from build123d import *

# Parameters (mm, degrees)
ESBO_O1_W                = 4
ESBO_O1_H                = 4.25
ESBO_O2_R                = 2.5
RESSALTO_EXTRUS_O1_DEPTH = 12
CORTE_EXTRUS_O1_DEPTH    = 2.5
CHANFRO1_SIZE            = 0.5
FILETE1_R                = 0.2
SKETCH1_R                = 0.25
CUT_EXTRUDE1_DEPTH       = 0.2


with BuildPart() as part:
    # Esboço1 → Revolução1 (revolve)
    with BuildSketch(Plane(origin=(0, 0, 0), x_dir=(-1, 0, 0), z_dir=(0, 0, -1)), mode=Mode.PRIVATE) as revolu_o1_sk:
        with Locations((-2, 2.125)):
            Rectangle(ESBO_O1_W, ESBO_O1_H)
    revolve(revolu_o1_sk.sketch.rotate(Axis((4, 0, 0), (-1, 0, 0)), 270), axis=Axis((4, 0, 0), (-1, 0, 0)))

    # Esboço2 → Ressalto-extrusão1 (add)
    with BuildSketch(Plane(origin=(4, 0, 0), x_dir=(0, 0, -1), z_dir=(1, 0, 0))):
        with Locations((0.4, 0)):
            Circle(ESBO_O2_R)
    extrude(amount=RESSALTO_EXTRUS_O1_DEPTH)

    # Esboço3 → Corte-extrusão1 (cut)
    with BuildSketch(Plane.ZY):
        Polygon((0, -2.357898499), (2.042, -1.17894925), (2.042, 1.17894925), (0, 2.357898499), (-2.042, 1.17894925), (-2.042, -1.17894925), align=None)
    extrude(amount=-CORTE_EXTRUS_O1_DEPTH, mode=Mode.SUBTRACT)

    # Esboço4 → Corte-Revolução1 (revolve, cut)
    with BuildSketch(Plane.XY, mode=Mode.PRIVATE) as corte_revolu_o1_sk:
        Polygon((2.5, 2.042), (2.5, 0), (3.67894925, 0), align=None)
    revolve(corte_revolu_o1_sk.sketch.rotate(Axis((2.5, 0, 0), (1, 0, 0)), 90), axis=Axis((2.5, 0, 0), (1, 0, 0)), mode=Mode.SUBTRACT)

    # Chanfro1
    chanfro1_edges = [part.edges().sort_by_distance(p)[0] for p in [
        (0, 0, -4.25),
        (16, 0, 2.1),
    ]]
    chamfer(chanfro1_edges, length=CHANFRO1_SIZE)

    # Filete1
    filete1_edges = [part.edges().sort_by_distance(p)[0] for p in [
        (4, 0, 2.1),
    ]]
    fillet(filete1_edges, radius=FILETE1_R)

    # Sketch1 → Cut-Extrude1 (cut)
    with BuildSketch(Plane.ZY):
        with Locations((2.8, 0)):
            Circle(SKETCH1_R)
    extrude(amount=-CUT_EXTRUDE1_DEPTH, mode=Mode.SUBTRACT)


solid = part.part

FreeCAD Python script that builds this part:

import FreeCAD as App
import Part
import Sketcher
from FreeCAD import Vector
Q = App.Units.Quantity


def edges_at(feature, points):
    """Names of the edges that pass closest to the given points."""
    edges = feature.Shape.Edges
    near = lambda p: min(range(len(edges)), key=lambda i: edges[i].distToShape(Part.Vertex(*p))[0])
    return sorted({f"Edge{near(p) + 1}" for p in points})

doc = App.newDocument("Part")
body = doc.addObject("PartDesign::Body", "Body")

# Sketch on XY plane
sketch1 = doc.addObject("Sketcher::SketchObject", "Sketch")
body.addObject(sketch1)
sketch1.AttachmentSupport = (doc.XY_Plane, [""])
sketch1.MapMode = "FlatFace"
sketch1.addGeometry(Part.LineSegment(Vector(4, 4.2, 0), Vector(4, 0, 0)), False)
sketch1.addGeometry(Part.LineSegment(Vector(4, 0, 0), Vector(0, 0, 0)), False)
sketch1.addGeometry(Part.LineSegment(Vector(0, 0, 0), Vector(0, 4.2, 0)), False)
sketch1.addGeometry(Part.LineSegment(Vector(0, 4.2, 0), Vector(4, 4.2, 0)), False)
sketch1.addConstraint(Sketcher.Constraint("Coincident", 0, 2, 1, 1))
sketch1.addConstraint(Sketcher.Constraint("Coincident", 1, 2, 2, 1))
sketch1.addConstraint(Sketcher.Constraint("Coincident", 2, 2, 3, 1))
sketch1.addConstraint(Sketcher.Constraint("Coincident", 3, 2, 0, 1))
sketch1.addConstraint(Sketcher.Constraint("Vertical", 0))
sketch1.addConstraint(Sketcher.Constraint("Horizontal", 1))
sketch1.addConstraint(Sketcher.Constraint("Vertical", 2))
sketch1.addConstraint(Sketcher.Constraint("Horizontal", 3))
sketch1.addConstraint(Sketcher.Constraint("Coincident", 1, 2, -1, 1))
sketch1.addConstraint(Sketcher.Constraint("DistanceX", 1, 2, 1, 1, 4.0))
sketch1.addConstraint(Sketcher.Constraint("DistanceY", 0, 2, 0, 1, 4.25))
revolution = doc.addObject("PartDesign::Revolution", "Revolution")
body.addObject(revolution)
revolution.Profile = sketch1
revolution.ReferenceAxis = (sketch1, ["H_Axis"])
revolution.Angle = 360

# Sketch on YZ plane
sketch2 = doc.addObject("Sketcher::SketchObject", "Sketch001")
body.addObject(sketch2)
sketch2.AttachmentSupport = (doc.YZ_Plane, [""])
sketch2.MapMode = "FlatFace"
sketch2.AttachmentOffset = App.Placement(Vector(0, 0, 4), App.Rotation())
sketch2.addGeometry(Part.Circle(Vector(0, -0.4, 0), Vector(0, 0, 1), 2.5), False)
sketch2.addConstraint(Sketcher.Constraint("PointOnObject", 0, 3, -2))
sketch2.addConstraint(Sketcher.Constraint("Diameter", 0, 5.0))
sketch2.addConstraint(Sketcher.Constraint("DistanceY", 0, 3, -1, 1, 0.4))
pad1 = doc.addObject("PartDesign::Pad", "Pad")
body.addObject(pad1)
pad1.Profile = sketch2
pad1.Length = 12

# Sketch on YZ plane
sketch3 = doc.addObject("Sketcher::SketchObject", "Sketch002")
body.addObject(sketch3)
sketch3.AttachmentSupport = (doc.YZ_Plane, [""])
sketch3.MapMode = "FlatFace"
sketch3.addGeometry(Part.LineSegment(Vector(-2.4, 0, 0), Vector(-1.2, 2, 0)), False)
sketch3.addGeometry(Part.LineSegment(Vector(-1.2, 2, 0), Vector(1.2, 2, 0)), False)
sketch3.addGeometry(Part.LineSegment(Vector(1.2, 2, 0), Vector(2.4, 0, 0)), False)
sketch3.addGeometry(Part.LineSegment(Vector(2.4, 0, 0), Vector(1.2, -2, 0)), False)
sketch3.addGeometry(Part.LineSegment(Vector(1.2, -2, 0), Vector(-1.2, -2, 0)), False)
sketch3.addGeometry(Part.LineSegment(Vector(-1.2, -2, 0), Vector(-2.4, 0, 0)), False)
sketch3.addConstraint(Sketcher.Constraint("Coincident", 0, 2, 1, 1))
sketch3.addConstraint(Sketcher.Constraint("Coincident", 1, 2, 2, 1))
sketch3.addConstraint(Sketcher.Constraint("Coincident", 2, 2, 3, 1))
sketch3.addConstraint(Sketcher.Constraint("Coincident", 3, 2, 4, 1))
sketch3.addConstraint(Sketcher.Constraint("Coincident", 4, 2, 5, 1))
sketch3.addConstraint(Sketcher.Constraint("Coincident", 5, 2, 0, 1))
sketch3.addConstraint(Sketcher.Constraint("Horizontal", 1))
sketch3.addConstraint(Sketcher.Constraint("Horizontal", 4))
sketch3.addConstraint(Sketcher.Constraint("Symmetric", 0, 2, 3, 2, -1, 1))
sketch3.addConstraint(Sketcher.Constraint("Symmetric", 2, 2, 5, 2, -1, 1))
sketch3.addConstraint(Sketcher.Constraint("PointOnObject", 2, 2, -1))
sketch3.addConstraint(Sketcher.Constraint("Parallel", 2, 5))
sketch3.addConstraint(Sketcher.Constraint("Vertical", 1, 2, 3, 2))
sketch3.addConstraint(Sketcher.Constraint("Angle", 0, Q("60 deg")))
sketch3.addConstraint(Sketcher.Constraint("DistanceX", 1, 1, 1, 2, 2.357899))
sketch3.addConstraint(Sketcher.Constraint("DistanceY", -1, 1, 0, 2, 2.042))
pocket1 = doc.addObject("PartDesign::Pocket", "Pocket")
body.addObject(pocket1)
pocket1.Profile = sketch3
pocket1.Length = 2.5
pocket1.Reversed = True

# Sketch on XY plane
sketch4 = doc.addObject("Sketcher::SketchObject", "Sketch003")
body.addObject(sketch4)
sketch4.AttachmentSupport = (doc.XY_Plane, [""])
sketch4.MapMode = "FlatFace"
sketch4.addGeometry(Part.LineSegment(Vector(2.5, 2, 0), Vector(2.5, 0, 0)), False)
sketch4.addGeometry(Part.LineSegment(Vector(2.5, 0, 0), Vector(3.7, 0, 0)), False)
sketch4.addGeometry(Part.LineSegment(Vector(3.7, 0, 0), Vector(2.5, 2, 0)), False)
sketch4.addConstraint(Sketcher.Constraint("Coincident", 0, 2, 1, 1))
sketch4.addConstraint(Sketcher.Constraint("Coincident", 1, 2, 2, 1))
sketch4.addConstraint(Sketcher.Constraint("Coincident", 2, 2, 0, 1))
sketch4.addConstraint(Sketcher.Constraint("Vertical", 0))
sketch4.addConstraint(Sketcher.Constraint("Horizontal", 1))
sketch4.addConstraint(Sketcher.Constraint("PointOnObject", 0, 2, -1))
sketch4.addConstraint(Sketcher.Constraint("Angle", 2, Q("120 deg")))
sketch4.addConstraint(Sketcher.Constraint("DistanceX", -1, 1, 0, 2, 2.5))
sketch4.addConstraint(Sketcher.Constraint("DistanceY", 0, 2, 0, 1, 2.042))
groove = doc.addObject("PartDesign::Groove", "Groove")
body.addObject(groove)
groove.Profile = sketch4
groove.ReferenceAxis = (sketch4, ["H_Axis"])
groove.Angle = 360
doc.recompute()

chamfer = doc.addObject("PartDesign::Chamfer", "Chamfer")
body.addObject(chamfer)
chamfer.Base = (groove, edges_at(groove, [(0, 0, -4.25), (16, 0, 2.1)]))
chamfer.Size = 0.5
doc.recompute()

fillet = doc.addObject("PartDesign::Fillet", "Fillet")
body.addObject(fillet)
fillet.Base = (chamfer, edges_at(chamfer, [(4, 0, 2.1)]))
fillet.Radius = 0.2

# Sketch on YZ plane
sketch5 = doc.addObject("Sketcher::SketchObject", "Sketch004")
body.addObject(sketch5)
sketch5.AttachmentSupport = (doc.YZ_Plane, [""])
sketch5.MapMode = "FlatFace"
sketch5.addGeometry(Part.Circle(Vector(0, 2.8, 0), Vector(0, 0, 1), 0.25), False)
sketch5.addConstraint(Sketcher.Constraint("PointOnObject", 0, 3, -2))
sketch5.addConstraint(Sketcher.Constraint("Diameter", 0, 0.5))
sketch5.addConstraint(Sketcher.Constraint("DistanceY", -1, 1, 0, 3, 2.8))
pocket2 = doc.addObject("PartDesign::Pocket", "Pocket001")
body.addObject(pocket2)
pocket2.Profile = sketch5
pocket2.Length = 0.2
pocket2.Reversed = True

doc.recompute()
